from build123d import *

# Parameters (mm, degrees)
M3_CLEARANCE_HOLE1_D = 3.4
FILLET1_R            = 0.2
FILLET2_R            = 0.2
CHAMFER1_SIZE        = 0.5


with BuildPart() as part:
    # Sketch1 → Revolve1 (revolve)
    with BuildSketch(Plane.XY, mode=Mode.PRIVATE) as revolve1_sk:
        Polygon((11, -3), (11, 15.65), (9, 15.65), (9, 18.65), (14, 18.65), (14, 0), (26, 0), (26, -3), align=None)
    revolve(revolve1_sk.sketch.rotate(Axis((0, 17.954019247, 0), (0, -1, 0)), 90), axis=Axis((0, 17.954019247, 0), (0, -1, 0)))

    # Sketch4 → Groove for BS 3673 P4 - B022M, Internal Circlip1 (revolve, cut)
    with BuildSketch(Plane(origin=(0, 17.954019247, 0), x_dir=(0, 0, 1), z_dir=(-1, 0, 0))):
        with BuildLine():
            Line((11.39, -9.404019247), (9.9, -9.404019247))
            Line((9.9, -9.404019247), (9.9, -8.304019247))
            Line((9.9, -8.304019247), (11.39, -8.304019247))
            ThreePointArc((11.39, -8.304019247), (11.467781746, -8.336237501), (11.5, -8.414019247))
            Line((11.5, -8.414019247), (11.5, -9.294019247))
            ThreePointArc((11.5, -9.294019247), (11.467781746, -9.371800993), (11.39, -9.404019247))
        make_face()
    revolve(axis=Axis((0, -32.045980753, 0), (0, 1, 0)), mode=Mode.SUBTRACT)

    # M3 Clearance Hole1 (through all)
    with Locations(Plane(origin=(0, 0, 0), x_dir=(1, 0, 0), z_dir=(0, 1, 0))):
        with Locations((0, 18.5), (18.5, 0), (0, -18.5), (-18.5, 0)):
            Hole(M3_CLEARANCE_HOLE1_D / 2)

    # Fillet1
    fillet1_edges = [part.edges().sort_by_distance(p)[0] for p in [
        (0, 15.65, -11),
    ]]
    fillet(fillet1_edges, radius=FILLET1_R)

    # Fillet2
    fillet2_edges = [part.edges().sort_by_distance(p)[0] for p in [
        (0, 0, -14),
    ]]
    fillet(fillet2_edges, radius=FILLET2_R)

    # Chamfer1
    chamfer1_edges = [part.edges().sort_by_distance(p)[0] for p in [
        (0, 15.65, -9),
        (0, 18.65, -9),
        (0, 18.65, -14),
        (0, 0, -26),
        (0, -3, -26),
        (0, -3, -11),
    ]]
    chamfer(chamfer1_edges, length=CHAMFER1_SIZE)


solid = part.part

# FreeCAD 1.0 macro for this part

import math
import FreeCAD as App
import Part
import Sketcher


def edges_at(feature, points):
    """Names of the edges that pass closest to the given points."""
    edges = feature.Shape.Edges
    near = lambda p: min(range(len(edges)), key=lambda i: edges[i].distToShape(Part.Vertex(*p))[0])
    return sorted({f"Edge{near(p) + 1}" for p in points})

doc = App.newDocument("Part")
params = doc.addObject("Spreadsheet::Sheet", "Params")
for row, (alias, value) in enumerate([
    ("sketch1_width", "15 mm"),
    ("sketch1_width2", "12 mm"),
    ("sketch1_width3", "5 mm"),
    ("sketch1_height", "3 mm"),
    ("sketch1_height2", "18.65 mm"),
    ("revolution_angle", "360 deg"),
    ("sketch2_radius", "0.11 mm"),
    ("sketch2_width", "1.1 mm"),
    ("sketch2_height", "1.49 mm"),
    ("groove_angle", "360 deg"),
    ("sketch3_diameter", "3.4 mm"),
    ("hole_diameter", "3.4 mm"),
    ("fillet_radius", "0.2 mm"),
    ("fillet2_radius", "0.2 mm"),
    ("chamfer_size", "0.5 mm"),
], start=1):
    params.set(f"A{row}", alias)
    params.set(f"B{row}", "=" + value)
    params.setAlias(f"B{row}", alias)

body = doc.addObject("PartDesign::Body", "Body")

sketch1 = body.newObject("Sketcher::SketchObject", "Sketch")
sketch1.AttachmentSupport = (doc.getObject("XY_Plane"), [""])
sketch1.MapMode = "FlatFace"
sketch1.addGeometry([
    Part.LineSegment(App.Vector(11, 15.7, 0), App.Vector(11, -3, 0)),
    Part.LineSegment(App.Vector(11, -3, 0), App.Vector(26, -3, 0)),
    Part.LineSegment(App.Vector(26, -3, 0), App.Vector(26, 0, 0)),
    Part.LineSegment(App.Vector(26, 0, 0), App.Vector(14, 0, 0)),
    Part.LineSegment(App.Vector(14, 0, 0), App.Vector(14, 18.6, 0)),
    Part.LineSegment(App.Vector(14, 18.6, 0), App.Vector(9, 18.6, 0)),
    Part.LineSegment(App.Vector(9, 18.6, 0), App.Vector(9, 15.7, 0)),
    Part.LineSegment(App.Vector(9, 15.7, 0), App.Vector(11, 15.7, 0)),
], False)
sketch1.addConstraint([
    Sketcher.Constraint("Coincident", 0, 2, 1, 1),
    Sketcher.Constraint("Coincident", 1, 2, 2, 1),
    Sketcher.Constraint("Coincident", 2, 2, 3, 1),
    Sketcher.Constraint("Coincident", 3, 2, 4, 1),
    Sketcher.Constraint("Coincident", 4, 2, 5, 1),
    Sketcher.Constraint("Coincident", 5, 2, 6, 1),
    Sketcher.Constraint("Coincident", 6, 2, 7, 1),
    Sketcher.Constraint("Coincident", 7, 2, 0, 1),
    Sketcher.Constraint("Vertical", 0),
    Sketcher.Constraint("Horizontal", 1),
    Sketcher.Constraint("Vertical", 2),
    Sketcher.Constraint("Horizontal", 3),
    Sketcher.Constraint("Vertical", 4),
    Sketcher.Constraint("Horizontal", 5),
    Sketcher.Constraint("Vertical", 6),
    Sketcher.Constraint("Horizontal", 7),
    Sketcher.Constraint("PointOnObject", 2, 2, -1),
    Sketcher.Constraint("Equal", 0, 4),
    Sketcher.Constraint("DistanceX", 1, 1, 1, 2, 15.0),
    Sketcher.Constraint("DistanceX", 3, 2, 3, 1, 12.0),
    Sketcher.Constraint("DistanceX", 5, 2, 5, 1, 5.0),
    Sketcher.Constraint("DistanceY", 2, 1, 2, 2, 3.0),
    Sketcher.Constraint("DistanceX", -1, 1, 0, 2, 11.0),
    Sketcher.Constraint("DistanceY", 0, 2, 0, 1, 18.65),
])
sketch1.setExpression("Constraints[18]", "Params.sketch1_width")
sketch1.setExpression("Constraints[19]", "Params.sketch1_width2")
sketch1.setExpression("Constraints[20]", "Params.sketch1_width3")
sketch1.setExpression("Constraints[21]", "Params.sketch1_height")
sketch1.setExpression("Constraints[23]", "Params.sketch1_height2")
revolution = body.newObject("PartDesign::Revolution", "Revolution")
revolution.Profile = sketch1
revolution.ReferenceAxis = (sketch1, ["V_Axis"])
revolution.setExpression("Angle", "Params.revolution_angle")

sketch2 = body.newObject("Sketcher::SketchObject", "Sketch001")
sketch2.AttachmentSupport = (doc.getObject("YZ_Plane"), [""])
sketch2.MapMode = "FlatFace"
sketch2.addGeometry([
    Part.LineSegment(App.Vector(8.55, 9.9, 0), App.Vector(8.55, 11.39, 0)),
    Part.ArcOfCircle(Part.Circle(App.Vector(8.66, 11.39, 0), App.Vector(0, 0, 1), 0.11), math.radians(90), math.radians(180)),
    Part.LineSegment(App.Vector(8.66, 11.5, 0), App.Vector(9.54, 11.5, 0)),
    Part.ArcOfCircle(Part.Circle(App.Vector(9.54, 11.39, 0), App.Vector(0, 0, 1), 0.11), math.radians(0), math.radians(90)),
    Part.LineSegment(App.Vector(9.65, 11.39, 0), App.Vector(9.65, 9.9, 0)),
    Part.LineSegment(App.Vector(9.65, 9.9, 0), App.Vector(8.55, 9.9, 0)),
], False)
sketch2.addConstraint([
    Sketcher.Constraint("Tangent", 0, 2, 1, 2),
    Sketcher.Constraint("Tangent", 1, 1, 2, 1),
    Sketcher.Constraint("Tangent", 2, 2, 3, 2),
    Sketcher.Constraint("Tangent", 3, 1, 4, 1),
    Sketcher.Constraint("Coincident", 4, 2, 5, 1),
    Sketcher.Constraint("Coincident", 5, 2, 0, 1),
    Sketcher.Constraint("Vertical", 0),
    Sketcher.Constraint("Horizontal", 2),
    Sketcher.Constraint("Vertical", 4),
    Sketcher.Constraint("Horizontal", 5),
    Sketcher.Constraint("Equal", 1, 3),
    Sketcher.Constraint("Radius", 1, 0.11),
    Sketcher.Constraint("DistanceX", 5, 2, 5, 1, 1.1),
    Sketcher.Constraint("DistanceY", 0, 1, 0, 2, 1.49),
    Sketcher.Constraint("DistanceY", -1, 1, 1, 1, 11.5),
    Sketcher.Constraint("DistanceX", -1, 1, 1, 3, 8.66),
])
sketch2.setExpression("Constraints[11]", "Params.sketch2_radius")
sketch2.setExpression("Constraints[12]", "Params.sketch2_width")
sketch2.setExpression("Constraints[13]", "Params.sketch2_height")
groove = body.newObject("PartDesign::Groove", "Groove")
groove.Profile = sketch2
groove.ReferenceAxis = (sketch2, ["H_Axis"])
groove.setExpression("Angle", "Params.groove_angle")

sketch3 = body.newObject("Sketcher::SketchObject", "Sketch002")
sketch3.AttachmentSupport = (doc.getObject("XZ_Plane"), [""])
sketch3.MapMode = "FlatFace"
sketch3.addGeometry([
    Part.Circle(App.Vector(0, -18.5, 0), App.Vector(0, 0, 1), 1.7),
    Part.Circle(App.Vector(18.5, 0, 0), App.Vector(0, 0, 1), 1.7),
    Part.Circle(App.Vector(0, 18.5, 0), App.Vector(0, 0, 1), 1.7),
    Part.Circle(App.Vector(-18.5, 0, 0), App.Vector(0, 0, 1), 1.7),
], False)
sketch3.addConstraint([
    Sketcher.Constraint("Equal", 0, 1),
    Sketcher.Constraint("Equal", 1, 2),
    Sketcher.Constraint("Equal", 2, 3),
    Sketcher.Constraint("Symmetric", 0, 3, 2, 3, -1, 1),
    Sketcher.Constraint("Symmetric", 1, 3, 3, 3, -1, 1),
    Sketcher.Constraint("PointOnObject", 0, 3, -2),
    Sketcher.Constraint("PointOnObject", 1, 3, -1),
    Sketcher.Constraint("Diameter", 0, 3.4),
    Sketcher.Constraint("DistanceY", 0, 3, 2, 3, 37.0),
    Sketcher.Constraint("DistanceX", 3, 3, 1, 3, 37.0),
])
sketch3.setExpression("Constraints[7]", "Params.sketch3_diameter")
doc.recompute()
hole = body.newObject("PartDesign::Hole", "Hole")
hole.Profile = sketch3
hole.ThreadType = "None"
hole.setExpression("Diameter", "Params.hole_diameter")
hole.DepthType = "ThroughAll"
hole.Reversed = True
doc.recompute()

fillet = body.newObject("PartDesign::Fillet", "Fillet")
fillet.Base = (hole, edges_at(hole, [(0, 15.65, -11)]))
fillet.setExpression("Radius", "Params.fillet_radius")
doc.recompute()

fillet2 = body.newObject("PartDesign::Fillet", "Fillet001")
fillet2.Base = (fillet, edges_at(fillet, [(0, 0, -14)]))
fillet2.setExpression("Radius", "Params.fillet2_radius")
doc.recompute()

chamfer = body.newObject("PartDesign::Chamfer", "Chamfer")
chamfer.Base = (fillet2, edges_at(fillet2, [
    (0, 15.65, -9),
    (0, 18.65, -9),
    (0, 18.65, -14),
    (0, 0, -26),
    (0, -3, -26),
    (0, -3, -11),
]))
chamfer.setExpression("Size", "Params.chamfer_size")

doc.recompute()
